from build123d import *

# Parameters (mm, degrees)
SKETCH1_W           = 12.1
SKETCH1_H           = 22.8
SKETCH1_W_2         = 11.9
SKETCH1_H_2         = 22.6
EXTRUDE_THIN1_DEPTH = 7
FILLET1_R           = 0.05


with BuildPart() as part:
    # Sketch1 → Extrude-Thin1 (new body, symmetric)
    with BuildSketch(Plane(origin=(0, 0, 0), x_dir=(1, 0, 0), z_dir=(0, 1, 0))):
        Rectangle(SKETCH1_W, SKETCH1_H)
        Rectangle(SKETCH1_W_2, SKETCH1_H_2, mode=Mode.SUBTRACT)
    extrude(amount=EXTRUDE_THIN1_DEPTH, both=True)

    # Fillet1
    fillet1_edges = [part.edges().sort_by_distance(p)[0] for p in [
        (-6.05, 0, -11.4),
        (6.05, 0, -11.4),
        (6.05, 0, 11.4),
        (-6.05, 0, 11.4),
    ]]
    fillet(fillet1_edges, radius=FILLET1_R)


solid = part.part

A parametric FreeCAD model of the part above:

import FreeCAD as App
import Part
import Sketcher
from FreeCAD import Vector
Q = App.Units.Quantity


def edges_at(feature, points):
    """Names of the edges that pass closest to the given points."""
    edges = feature.Shape.Edges
    near = lambda p: min(range(len(edges)), key=lambda i: edges[i].distToShape(Part.Vertex(*p))[0])
    return sorted({f"Edge{near(p) + 1}" for p in points})


def add_polygon(sketch, points):
    """Adds a closed chain of lines whose ends are joined by coincident constraints."""
    first, n = sketch.GeometryCount, len(points)
    for a, b in zip(points, points[1:] + points[:1]):
        sketch.addGeometry(Part.LineSegment(App.Vector(*a, 0), App.Vector(*b, 0)), False)
    for i in range(n):
        sketch.addConstraint(Sketcher.Constraint("Coincident", first + i, 2, first + (i + 1) % n, 1))

doc = App.newDocument("Part")
body = doc.addObject("PartDesign::Body", "Body")

sketch1 = body.newObject("Sketcher::SketchObject", "Sketch")
sketch1.AttachmentSupport = (doc.getObject("XZ_Plane"), [""])
sketch1.MapMode = "FlatFace"
add_polygon(sketch1, [(-6, -11), (-6, 11), (6, 11), (6, -11)])
add_polygon(sketch1, [(6, 11), (-6, 11), (-6, -11), (6, -11)])
sketch1.addConstraint(Sketcher.Constraint("Vertical", 0))
sketch1.addConstraint(Sketcher.Constraint("Horizontal", 1))
sketch1.addConstraint(Sketcher.Constraint("Vertical", 2))
sketch1.addConstraint(Sketcher.Constraint("Horizontal", 3))
sketch1.addConstraint(Sketcher.Constraint("Horizontal", 4))
sketch1.addConstraint(Sketcher.Constraint("Vertical", 5))
sketch1.addConstraint(Sketcher.Constraint("Horizontal", 6))
sketch1.addConstraint(Sketcher.Constraint("Vertical", 7))
sketch1.addConstraint(Sketcher.Constraint("Symmetric", 0, 2, 2, 2, -1, 1))
sketch1.addConstraint(Sketcher.Constraint("Symmetric", 4, 2, 6, 2, -1, 1))
sketch1.addConstraint(Sketcher.Constraint("DistanceX", 1, 1, 1, 2, Q("12.1 mm")))
sketch1.addConstraint(Sketcher.Constraint("DistanceX", 4, 2, 4, 1, Q("11.9 mm")))
sketch1.addConstraint(Sketcher.Constraint("DistanceY", 0, 1, 0, 2, Q("22.8 mm")))
sketch1.addConstraint(Sketcher.Constraint("DistanceY", 5, 2, 5, 1, Q("22.6 mm")))
pad1 = body.newObject("PartDesign::Pad", "Pad")
pad1.Profile = sketch1
pad1.Length = 14
pad1.Midplane = True
doc.recompute()

fillet = body.newObject("PartDesign::Fillet", "Fillet")
fillet.Base = (pad1, edges_at(pad1, [
    (-6.05, 0, -11.4),
    (6.05, 0, -11.4),
    (6.05, 0, 11.4),
    (-6.05, 0, 11.4),
]))
fillet.Radius = 0.05

doc.recompute()
